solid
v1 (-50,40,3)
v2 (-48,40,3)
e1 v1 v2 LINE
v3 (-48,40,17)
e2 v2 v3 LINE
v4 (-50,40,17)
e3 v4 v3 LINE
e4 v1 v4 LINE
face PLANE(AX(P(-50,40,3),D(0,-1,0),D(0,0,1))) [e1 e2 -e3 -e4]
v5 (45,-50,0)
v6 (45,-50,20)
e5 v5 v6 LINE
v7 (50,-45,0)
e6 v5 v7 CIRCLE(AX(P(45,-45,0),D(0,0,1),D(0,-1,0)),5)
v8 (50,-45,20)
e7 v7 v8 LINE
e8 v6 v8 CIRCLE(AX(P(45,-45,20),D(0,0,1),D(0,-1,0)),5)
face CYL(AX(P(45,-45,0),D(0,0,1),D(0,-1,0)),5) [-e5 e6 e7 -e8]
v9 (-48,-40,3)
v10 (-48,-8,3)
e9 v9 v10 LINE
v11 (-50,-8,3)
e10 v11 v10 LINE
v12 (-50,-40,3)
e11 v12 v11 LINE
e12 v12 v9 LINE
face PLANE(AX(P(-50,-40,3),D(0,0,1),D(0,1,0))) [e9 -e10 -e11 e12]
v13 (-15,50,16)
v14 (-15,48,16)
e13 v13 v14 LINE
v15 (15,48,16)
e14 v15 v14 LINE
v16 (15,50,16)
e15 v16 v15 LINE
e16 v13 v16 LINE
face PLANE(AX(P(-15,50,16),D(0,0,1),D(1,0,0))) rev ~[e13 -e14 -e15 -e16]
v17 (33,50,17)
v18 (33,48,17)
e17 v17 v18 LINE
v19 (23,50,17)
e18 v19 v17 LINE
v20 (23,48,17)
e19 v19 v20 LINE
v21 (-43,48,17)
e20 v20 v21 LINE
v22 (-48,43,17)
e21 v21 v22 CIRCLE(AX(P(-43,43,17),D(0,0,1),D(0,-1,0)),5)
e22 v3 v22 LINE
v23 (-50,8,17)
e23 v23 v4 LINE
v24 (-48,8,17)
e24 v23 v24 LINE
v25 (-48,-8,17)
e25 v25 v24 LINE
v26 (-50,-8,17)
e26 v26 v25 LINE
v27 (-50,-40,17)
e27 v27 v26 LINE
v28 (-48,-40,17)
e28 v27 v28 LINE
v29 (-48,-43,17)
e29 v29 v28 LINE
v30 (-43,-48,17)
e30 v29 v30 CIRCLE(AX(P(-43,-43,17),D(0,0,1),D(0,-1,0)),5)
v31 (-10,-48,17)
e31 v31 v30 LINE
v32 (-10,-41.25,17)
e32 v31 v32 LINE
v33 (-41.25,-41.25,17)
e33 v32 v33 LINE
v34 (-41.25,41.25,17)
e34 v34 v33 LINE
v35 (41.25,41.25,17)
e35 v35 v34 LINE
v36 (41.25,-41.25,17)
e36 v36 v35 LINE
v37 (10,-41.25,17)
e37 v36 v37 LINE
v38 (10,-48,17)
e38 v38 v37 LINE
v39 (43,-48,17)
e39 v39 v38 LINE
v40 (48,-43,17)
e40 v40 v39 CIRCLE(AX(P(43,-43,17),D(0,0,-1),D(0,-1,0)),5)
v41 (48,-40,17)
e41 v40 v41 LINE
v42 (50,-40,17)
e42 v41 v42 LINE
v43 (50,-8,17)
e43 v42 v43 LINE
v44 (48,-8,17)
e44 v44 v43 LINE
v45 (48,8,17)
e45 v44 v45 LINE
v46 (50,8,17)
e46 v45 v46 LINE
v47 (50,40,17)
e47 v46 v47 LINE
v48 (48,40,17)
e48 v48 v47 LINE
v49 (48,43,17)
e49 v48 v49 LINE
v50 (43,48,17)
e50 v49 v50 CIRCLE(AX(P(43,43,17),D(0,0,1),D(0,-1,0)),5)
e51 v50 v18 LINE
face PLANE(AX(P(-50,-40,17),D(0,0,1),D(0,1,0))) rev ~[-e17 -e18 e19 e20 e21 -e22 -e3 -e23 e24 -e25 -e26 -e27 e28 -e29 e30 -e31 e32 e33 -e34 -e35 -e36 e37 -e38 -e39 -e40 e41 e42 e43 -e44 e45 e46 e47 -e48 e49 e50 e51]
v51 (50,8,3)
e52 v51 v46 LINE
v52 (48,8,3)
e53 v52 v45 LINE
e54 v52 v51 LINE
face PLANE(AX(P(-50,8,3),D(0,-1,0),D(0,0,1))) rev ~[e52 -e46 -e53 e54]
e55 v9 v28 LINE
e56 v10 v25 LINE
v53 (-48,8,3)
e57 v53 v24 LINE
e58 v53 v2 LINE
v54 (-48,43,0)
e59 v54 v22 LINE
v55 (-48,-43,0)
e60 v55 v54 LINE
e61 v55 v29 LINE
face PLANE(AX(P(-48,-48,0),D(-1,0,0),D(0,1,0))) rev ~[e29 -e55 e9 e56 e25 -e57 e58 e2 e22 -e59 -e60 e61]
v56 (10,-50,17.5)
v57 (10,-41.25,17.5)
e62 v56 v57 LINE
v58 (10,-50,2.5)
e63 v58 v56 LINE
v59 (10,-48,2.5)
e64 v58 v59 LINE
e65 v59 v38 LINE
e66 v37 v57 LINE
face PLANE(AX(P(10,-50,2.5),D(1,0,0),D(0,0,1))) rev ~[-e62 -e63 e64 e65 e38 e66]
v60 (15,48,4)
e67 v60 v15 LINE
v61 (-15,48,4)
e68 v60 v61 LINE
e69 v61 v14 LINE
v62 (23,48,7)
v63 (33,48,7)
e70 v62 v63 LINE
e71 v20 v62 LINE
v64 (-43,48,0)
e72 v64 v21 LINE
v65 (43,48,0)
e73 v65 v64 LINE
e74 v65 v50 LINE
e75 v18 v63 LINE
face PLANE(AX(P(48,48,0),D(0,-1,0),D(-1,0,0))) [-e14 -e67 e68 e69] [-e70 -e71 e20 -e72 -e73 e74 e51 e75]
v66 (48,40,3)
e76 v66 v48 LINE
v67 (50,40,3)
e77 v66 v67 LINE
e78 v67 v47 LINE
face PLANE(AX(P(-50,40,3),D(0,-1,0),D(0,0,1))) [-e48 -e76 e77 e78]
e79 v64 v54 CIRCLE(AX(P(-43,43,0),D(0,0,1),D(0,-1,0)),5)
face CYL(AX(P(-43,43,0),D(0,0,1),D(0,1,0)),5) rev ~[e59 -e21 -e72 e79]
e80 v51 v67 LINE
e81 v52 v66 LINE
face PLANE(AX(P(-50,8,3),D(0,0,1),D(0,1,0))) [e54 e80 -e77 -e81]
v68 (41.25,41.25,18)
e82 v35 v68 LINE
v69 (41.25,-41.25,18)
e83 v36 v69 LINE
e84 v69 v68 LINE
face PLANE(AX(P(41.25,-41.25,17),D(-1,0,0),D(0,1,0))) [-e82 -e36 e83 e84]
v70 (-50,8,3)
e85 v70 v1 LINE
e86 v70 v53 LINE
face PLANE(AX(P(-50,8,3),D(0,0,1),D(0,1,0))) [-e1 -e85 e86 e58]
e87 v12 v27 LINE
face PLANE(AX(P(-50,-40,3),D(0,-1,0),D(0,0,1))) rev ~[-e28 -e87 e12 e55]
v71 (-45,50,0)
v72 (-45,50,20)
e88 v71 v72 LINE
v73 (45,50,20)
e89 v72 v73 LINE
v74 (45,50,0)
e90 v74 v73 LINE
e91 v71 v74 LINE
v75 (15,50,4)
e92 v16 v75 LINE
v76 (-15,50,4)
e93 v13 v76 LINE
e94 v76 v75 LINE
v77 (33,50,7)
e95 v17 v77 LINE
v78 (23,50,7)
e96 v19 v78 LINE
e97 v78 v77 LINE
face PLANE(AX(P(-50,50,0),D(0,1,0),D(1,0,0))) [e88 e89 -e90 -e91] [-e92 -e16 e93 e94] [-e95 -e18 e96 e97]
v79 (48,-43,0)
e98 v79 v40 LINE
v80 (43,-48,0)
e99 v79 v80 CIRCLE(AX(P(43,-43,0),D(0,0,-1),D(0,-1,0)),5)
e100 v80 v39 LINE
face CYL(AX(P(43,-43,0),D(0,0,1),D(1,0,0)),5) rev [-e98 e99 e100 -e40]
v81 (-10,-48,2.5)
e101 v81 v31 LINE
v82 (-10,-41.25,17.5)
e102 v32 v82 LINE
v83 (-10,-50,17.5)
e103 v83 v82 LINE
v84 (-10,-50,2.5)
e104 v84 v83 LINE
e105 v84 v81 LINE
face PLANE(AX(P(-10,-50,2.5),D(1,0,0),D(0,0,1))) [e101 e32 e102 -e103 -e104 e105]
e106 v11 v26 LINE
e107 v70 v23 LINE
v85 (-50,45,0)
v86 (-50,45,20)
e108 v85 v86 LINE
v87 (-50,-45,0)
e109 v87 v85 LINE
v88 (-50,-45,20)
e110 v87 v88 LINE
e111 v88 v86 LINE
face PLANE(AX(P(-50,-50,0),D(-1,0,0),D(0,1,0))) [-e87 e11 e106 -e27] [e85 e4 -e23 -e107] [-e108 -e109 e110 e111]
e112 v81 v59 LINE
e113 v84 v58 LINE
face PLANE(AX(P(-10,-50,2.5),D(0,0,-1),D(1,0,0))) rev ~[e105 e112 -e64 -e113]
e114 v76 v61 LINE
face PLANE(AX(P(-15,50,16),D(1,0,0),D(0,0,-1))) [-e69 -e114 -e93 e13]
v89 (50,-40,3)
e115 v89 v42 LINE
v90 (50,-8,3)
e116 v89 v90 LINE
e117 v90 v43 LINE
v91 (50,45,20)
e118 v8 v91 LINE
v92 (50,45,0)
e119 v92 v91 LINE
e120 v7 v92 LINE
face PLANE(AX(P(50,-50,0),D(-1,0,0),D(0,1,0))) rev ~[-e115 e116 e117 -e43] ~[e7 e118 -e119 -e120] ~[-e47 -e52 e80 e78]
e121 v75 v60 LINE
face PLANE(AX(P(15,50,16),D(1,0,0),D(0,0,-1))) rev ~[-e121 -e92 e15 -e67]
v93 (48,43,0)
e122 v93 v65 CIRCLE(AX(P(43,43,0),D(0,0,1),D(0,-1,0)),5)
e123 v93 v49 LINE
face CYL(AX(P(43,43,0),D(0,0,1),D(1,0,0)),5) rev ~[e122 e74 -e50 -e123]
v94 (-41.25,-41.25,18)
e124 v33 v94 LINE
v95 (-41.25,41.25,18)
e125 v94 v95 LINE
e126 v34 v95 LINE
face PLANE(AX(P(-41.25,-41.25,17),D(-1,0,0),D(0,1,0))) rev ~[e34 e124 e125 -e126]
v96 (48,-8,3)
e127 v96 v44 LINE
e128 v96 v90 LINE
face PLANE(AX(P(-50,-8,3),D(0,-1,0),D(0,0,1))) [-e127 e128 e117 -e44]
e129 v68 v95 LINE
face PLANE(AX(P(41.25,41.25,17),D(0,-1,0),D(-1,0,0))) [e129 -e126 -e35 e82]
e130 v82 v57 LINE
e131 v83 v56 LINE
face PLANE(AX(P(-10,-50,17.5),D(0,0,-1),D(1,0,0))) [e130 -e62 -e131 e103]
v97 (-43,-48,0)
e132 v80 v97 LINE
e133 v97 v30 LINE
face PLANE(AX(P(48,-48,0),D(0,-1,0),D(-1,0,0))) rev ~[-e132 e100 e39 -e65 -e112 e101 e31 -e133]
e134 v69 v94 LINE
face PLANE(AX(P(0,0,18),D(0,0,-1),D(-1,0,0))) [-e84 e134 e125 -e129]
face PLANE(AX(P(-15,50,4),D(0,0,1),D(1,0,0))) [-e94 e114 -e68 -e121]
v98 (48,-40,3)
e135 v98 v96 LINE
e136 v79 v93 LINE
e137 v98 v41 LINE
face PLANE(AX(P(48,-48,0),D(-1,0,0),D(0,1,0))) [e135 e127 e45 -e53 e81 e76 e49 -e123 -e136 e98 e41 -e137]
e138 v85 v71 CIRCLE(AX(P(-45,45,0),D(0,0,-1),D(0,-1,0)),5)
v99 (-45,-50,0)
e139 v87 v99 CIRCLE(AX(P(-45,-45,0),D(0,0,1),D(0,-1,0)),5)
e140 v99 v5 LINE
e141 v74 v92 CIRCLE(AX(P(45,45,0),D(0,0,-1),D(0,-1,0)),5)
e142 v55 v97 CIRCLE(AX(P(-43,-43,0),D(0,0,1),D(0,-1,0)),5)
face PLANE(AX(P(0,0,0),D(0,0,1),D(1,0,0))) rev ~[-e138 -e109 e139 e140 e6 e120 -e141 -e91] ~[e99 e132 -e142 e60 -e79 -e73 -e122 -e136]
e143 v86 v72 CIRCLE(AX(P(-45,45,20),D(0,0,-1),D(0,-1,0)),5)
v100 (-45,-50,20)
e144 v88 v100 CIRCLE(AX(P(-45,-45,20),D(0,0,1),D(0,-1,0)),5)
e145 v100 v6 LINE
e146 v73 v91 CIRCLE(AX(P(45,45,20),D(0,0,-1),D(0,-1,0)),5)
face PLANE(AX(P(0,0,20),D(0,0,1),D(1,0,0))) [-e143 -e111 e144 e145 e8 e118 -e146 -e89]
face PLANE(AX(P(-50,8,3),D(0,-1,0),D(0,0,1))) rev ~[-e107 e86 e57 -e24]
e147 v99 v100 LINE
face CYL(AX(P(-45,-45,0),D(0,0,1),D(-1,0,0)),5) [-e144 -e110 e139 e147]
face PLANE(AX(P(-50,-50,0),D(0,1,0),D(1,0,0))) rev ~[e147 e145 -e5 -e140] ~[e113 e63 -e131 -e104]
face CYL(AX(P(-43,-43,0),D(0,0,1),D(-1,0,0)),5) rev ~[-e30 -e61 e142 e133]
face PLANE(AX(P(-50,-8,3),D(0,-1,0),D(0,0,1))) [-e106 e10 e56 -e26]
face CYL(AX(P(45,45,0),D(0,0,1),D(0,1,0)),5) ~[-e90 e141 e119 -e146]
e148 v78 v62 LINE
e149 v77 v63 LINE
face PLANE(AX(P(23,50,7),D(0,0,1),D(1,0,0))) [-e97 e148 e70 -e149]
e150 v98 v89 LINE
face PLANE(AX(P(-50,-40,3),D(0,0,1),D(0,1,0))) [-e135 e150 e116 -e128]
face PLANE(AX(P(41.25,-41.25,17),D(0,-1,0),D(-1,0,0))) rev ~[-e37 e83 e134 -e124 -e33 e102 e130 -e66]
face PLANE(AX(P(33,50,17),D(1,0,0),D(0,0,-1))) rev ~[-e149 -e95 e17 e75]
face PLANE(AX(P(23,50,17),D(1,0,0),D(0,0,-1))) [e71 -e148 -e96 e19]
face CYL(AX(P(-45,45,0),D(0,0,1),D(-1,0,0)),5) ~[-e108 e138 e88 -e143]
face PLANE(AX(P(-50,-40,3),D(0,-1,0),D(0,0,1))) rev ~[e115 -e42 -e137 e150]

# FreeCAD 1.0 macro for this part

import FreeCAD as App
import Part
import Sketcher
Q = App.Units.Quantity


def edges_at(feature, points):
    """Names of the edges that pass closest to the given points."""
    edges = feature.Shape.Edges
    near = lambda p: min(range(len(edges)), key=lambda i: edges[i].distToShape(Part.Vertex(*p))[0])
    return sorted({f"Edge{near(p) + 1}" for p in points})


def add_polygon(sketch, points):
    """Adds a closed chain of lines whose ends are joined by coincident constraints."""
    first, n = sketch.GeometryCount, len(points)
    for a, b in zip(points, points[1:] + points[:1]):
        sketch.addGeometry(Part.LineSegment(App.Vector(*a, 0), App.Vector(*b, 0)), False)
    for i in range(n):
        sketch.addConstraint(Sketcher.Constraint("Coincident", first + i, 2, first + (i + 1) % n, 1))

doc = App.newDocument("Part")
body = doc.addObject("PartDesign::Body", "Body")

sketch1 = body.newObject("Sketcher::SketchObject", "Sketch")
sketch1.AttachmentSupport = (doc.getObject("XY_Plane"), [""])
sketch1.MapMode = "FlatFace"
add_polygon(sketch1, [(-50, 50), (-50, -50), (50, -50), (50, 50)])
sketch1.addConstraint([
    Sketcher.Constraint("Vertical", 0),
    Sketcher.Constraint("Horizontal", 1),
    Sketcher.Constraint("Vertical", 2),
    Sketcher.Constraint("Horizontal", 3),
    Sketcher.Constraint("Symmetric", 0, 2, 2, 2, -1, 1),
    Sketcher.Constraint("Equal", 3, 0),
    Sketcher.Constraint("DistanceX", 1, 1, 1, 2, Q("100 mm")),
])
pad1 = body.newObject("PartDesign::Pad", "Pad")
pad1.Profile = sketch1
pad1.Length = 20

sketch2 = body.newObject("Sketcher::SketchObject", "Sketch001")
sketch2.AttachmentSupport = (doc.getObject("XZ_Plane"), [""])
sketch2.MapMode = "FlatFace"
sketch2.AttachmentOffset = App.Placement(App.Vector(0, 0, -50), App.Rotation())
add_polygon(sketch2, [(23, 7), (23, 17), (33, 17), (33, 7)])
sketch2.addConstraint([
    Sketcher.Constraint("Vertical", 0),
    Sketcher.Constraint("Horizontal", 1),
    Sketcher.Constraint("Vertical", 2),
    Sketcher.Constraint("Horizontal", 3),
    Sketcher.Constraint("Equal", 3, 0),
    Sketcher.Constraint("DistanceX", 1, 1, 1, 2, Q("10 mm")),
    Sketcher.Constraint("DistanceX", -1, 1, 0, 2, Q("23 mm")),
    Sketcher.Constraint("DistanceY", -1, 1, 0, 2, Q("17 mm")),
])
pocket1 = body.newObject("PartDesign::Pocket", "Pocket")
pocket1.Profile = sketch2
pocket1.Length = 12
pocket1.Reversed = True

sketch3 = body.newObject("Sketcher::SketchObject", "Sketch002")
sketch3.AttachmentSupport = (doc.getObject("XY_Plane"), [""])
sketch3.MapMode = "FlatFace"
add_polygon(sketch3, [(48, 48), (48, -48), (-48, -48), (-48, 48)])
sketch3.addConstraint([
    Sketcher.Constraint("Vertical", 0),
    Sketcher.Constraint("Horizontal", 1),
    Sketcher.Constraint("Vertical", 2),
    Sketcher.Constraint("Horizontal", 3),
    Sketcher.Constraint("Symmetric", 0, 2, 2, 2, -1, 1),
    Sketcher.Constraint("Equal", 3, 0),
    Sketcher.Constraint("DistanceX", 1, 2, 1, 1, Q("96 mm")),
])
pocket2 = body.newObject("PartDesign::Pocket", "Pocket001")
pocket2.Profile = sketch3
pocket2.Length = 17
pocket2.Reversed = True

sketch4 = body.newObject("Sketcher::SketchObject", "Sketch003")
sketch4.AttachmentSupport = (doc.getObject("XY_Plane"), [""])
sketch4.MapMode = "FlatFace"
sketch4.AttachmentOffset = App.Placement(App.Vector(0, 0, 17), App.Rotation())
add_polygon(sketch4, [(41, 41), (41, -41), (-41, -41), (-41, 41)])
sketch4.addConstraint([
    Sketcher.Constraint("Vertical", 0),
    Sketcher.Constraint("Horizontal", 1),
    Sketcher.Constraint("Vertical", 2),
    Sketcher.Constraint("Horizontal", 3),
    Sketcher.Constraint("Symmetric", 0, 2, 2, 2, -1, 1),
    Sketcher.Constraint("Equal", 3, 0),
    Sketcher.Constraint("DistanceX", 1, 2, 1, 1, Q("82.5 mm")),
])
pocket3 = body.newObject("PartDesign::Pocket", "Pocket002")
pocket3.Profile = sketch4
pocket3.Length = 1
pocket3.Reversed = True
doc.recompute()

fillet = body.newObject("PartDesign::Fillet", "Fillet")
fillet.Base = (pocket3, edges_at(pocket3, [
    (48, 48, 8.5),
    (-48, 48, 8.5),
    (-48, -48, 8.5),
    (48, -48, 8.5),
]))
fillet.Radius = 5
doc.recompute()

fillet2 = body.newObject("PartDesign::Fillet", "Fillet001")
fillet2.Base = (fillet, edges_at(fillet, [
    (50, -50, 10),
    (-50, -50, 10),
    (-50, 50, 10),
    (50, 50, 10),
]))
fillet2.Radius = 5

sketch5 = body.newObject("Sketcher::SketchObject", "Sketch004")
sketch5.AttachmentSupport = (doc.getObject("YZ_Plane"), [""])
sketch5.MapMode = "FlatFace"
sketch5.AttachmentOffset = App.Placement(App.Vector(0, 0, -50), App.Rotation())
add_polygon(sketch5, [(-8, 3), (-40, 3), (-40, 17), (-8, 17)])
add_polygon(sketch5, [(40, 3), (8, 3), (8, 17), (40, 17)])
sketch5.addConstraint([
    Sketcher.Constraint("Horizontal", 0),
    Sketcher.Constraint("Vertical", 1),
    Sketcher.Constraint("Horizontal", 2),
    Sketcher.Constraint("Vertical", 3),
    Sketcher.Constraint("Horizontal", 4),
    Sketcher.Constraint("Vertical", 5),
    Sketcher.Constraint("Horizontal", 6),
    Sketcher.Constraint("Vertical", 7),
    Sketcher.Constraint("Symmetric", 3, 2, 4, 2, -2),
    Sketcher.Constraint("Symmetric", 1, 2, 6, 2, -2),
    Sketcher.Constraint("DistanceX", 0, 2, 0, 1, Q("32 mm")),
    Sketcher.Constraint("DistanceY", 1, 1, 1, 2, Q("14 mm")),
    Sketcher.Constraint("DistanceX", 0, 2, -1, 1, Q("40 mm")),
    Sketcher.Constraint("DistanceY", -1, 1, 0, 2, Q("3 mm")),
])
pocket4 = body.newObject("PartDesign::Pocket", "Pocket003")
pocket4.Profile = sketch5
pocket4.Type = "ThroughAll"
pocket4.Reversed = True

sketch6 = body.newObject("Sketcher::SketchObject", "Sketch005")
sketch6.AttachmentSupport = (doc.getObject("XZ_Plane"), [""])
sketch6.MapMode = "FlatFace"
sketch6.AttachmentOffset = App.Placement(App.Vector(0, 0, 50), App.Rotation())
add_polygon(sketch6, [(-10, 18), (-10, 2), (10, 2), (10, 18)])
sketch6.addConstraint([
    Sketcher.Constraint("Vertical", 0),
    Sketcher.Constraint("Horizontal", 1),
    Sketcher.Constraint("Vertical", 2),
    Sketcher.Constraint("Horizontal", 3),
    Sketcher.Constraint("DistanceX", 1, 1, 1, 2, Q("20 mm")),
    Sketcher.Constraint("DistanceY", 0, 2, 0, 1, Q("15 mm")),
    Sketcher.Constraint("DistanceX", 0, 2, -1, 1, Q("10 mm")),
    Sketcher.Constraint("DistanceY", -1, 1, 0, 2, Q("2.5 mm")),
])
pocket5 = body.newObject("PartDesign::Pocket", "Pocket004")
pocket5.Profile = sketch6
pocket5.Length = 10

sketch7 = body.newObject("Sketcher::SketchObject", "Sketch006")
sketch7.AttachmentSupport = (doc.getObject("XZ_Plane"), [""])
sketch7.MapMode = "FlatFace"
sketch7.AttachmentOffset = App.Placement(App.Vector(0, 0, -50), App.Rotation())
add_polygon(sketch7, [(-15, 4), (-15, 16), (15, 16), (15, 4)])
sketch7.addConstraint([
    Sketcher.Constraint("Vertical", 0),
    Sketcher.Constraint("Horizontal", 1),
    Sketcher.Constraint("Vertical", 2),
    Sketcher.Constraint("Horizontal", 3),
    Sketcher.Constraint("DistanceX", 1, 1, 1, 2, Q("30 mm")),
    Sketcher.Constraint("DistanceY", 0, 1, 0, 2, Q("12 mm")),
    Sketcher.Constraint("DistanceX", 0, 2, -1, 1, Q("15 mm")),
    Sketcher.Constraint("DistanceY", -1, 1, 0, 2, Q("16 mm")),
])
pocket6 = body.newObject("PartDesign::Pocket", "Pocket005")
pocket6.Profile = sketch7
pocket6.Length = 10
pocket6.Reversed = True

doc.recompute()
